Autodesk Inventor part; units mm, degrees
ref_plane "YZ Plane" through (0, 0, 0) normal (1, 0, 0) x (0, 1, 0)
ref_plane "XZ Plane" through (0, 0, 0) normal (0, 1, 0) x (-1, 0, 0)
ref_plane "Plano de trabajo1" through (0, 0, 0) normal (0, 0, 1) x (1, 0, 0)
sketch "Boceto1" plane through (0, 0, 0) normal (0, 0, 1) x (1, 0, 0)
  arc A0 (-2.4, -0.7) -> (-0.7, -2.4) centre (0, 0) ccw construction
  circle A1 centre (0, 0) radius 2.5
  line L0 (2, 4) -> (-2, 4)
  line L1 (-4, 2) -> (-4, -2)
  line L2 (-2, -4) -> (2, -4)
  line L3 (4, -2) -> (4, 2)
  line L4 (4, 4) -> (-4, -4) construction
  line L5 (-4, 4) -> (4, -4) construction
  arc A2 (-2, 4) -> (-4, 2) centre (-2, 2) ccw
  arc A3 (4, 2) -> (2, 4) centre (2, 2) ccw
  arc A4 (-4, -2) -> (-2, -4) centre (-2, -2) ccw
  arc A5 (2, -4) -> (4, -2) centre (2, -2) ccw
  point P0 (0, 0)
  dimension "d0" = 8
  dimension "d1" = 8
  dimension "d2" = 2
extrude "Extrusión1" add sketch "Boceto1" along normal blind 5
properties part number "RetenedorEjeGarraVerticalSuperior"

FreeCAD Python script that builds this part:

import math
import FreeCAD as App
import Part
import Sketcher

V = App.Vector
Q = App.Units.Quantity

doc = App.newDocument("Part")
body = doc.addObject("PartDesign::Body", "Body")

sketch1 = body.newObject("Sketcher::SketchObject", "Sketch")
sketch1.AttachmentSupport = (doc.getObject("XY_Plane"), [""])
sketch1.MapMode = "FlatFace"
sketch1.addGeometry(Part.ArcOfCircle(Part.Circle(V(2, 2, 0), V(0, 0, 1), 2), math.radians(0), math.radians(90)), False)
sketch1.addGeometry(Part.LineSegment(V(2, 4, 0), V(-2, 4, 0)), False)
sketch1.addGeometry(Part.ArcOfCircle(Part.Circle(V(-2, 2, 0), V(0, 0, 1), 2), math.radians(90), math.radians(180)), False)
sketch1.addGeometry(Part.LineSegment(V(-4, 2, 0), V(-4, -2, 0)), False)
sketch1.addGeometry(Part.ArcOfCircle(Part.Circle(V(-2, -2, 0), V(0, 0, 1), 2), math.radians(180), math.radians(270)), False)
sketch1.addGeometry(Part.LineSegment(V(-2, -4, 0), V(2, -4, 0)), False)
sketch1.addGeometry(Part.ArcOfCircle(Part.Circle(V(2, -2, 0), V(0, 0, 1), 2), math.radians(-90), math.radians(0)), False)
sketch1.addGeometry(Part.LineSegment(V(4, -2, 0), V(4, 2, 0)), False)
sketch1.addGeometry(Part.Circle(V(0, 0, 0), V(0, 0, 1), 2.5), False)
sketch1.addConstraint(Sketcher.Constraint("Tangent", 0, 2, 1, 1))
sketch1.addConstraint(Sketcher.Constraint("Tangent", 1, 2, 2, 1))
sketch1.addConstraint(Sketcher.Constraint("Tangent", 2, 2, 3, 1))
sketch1.addConstraint(Sketcher.Constraint("Tangent", 3, 2, 4, 1))
sketch1.addConstraint(Sketcher.Constraint("Tangent", 4, 2, 5, 1))
sketch1.addConstraint(Sketcher.Constraint("Tangent", 5, 2, 6, 1))
sketch1.addConstraint(Sketcher.Constraint("Tangent", 6, 2, 7, 1))
sketch1.addConstraint(Sketcher.Constraint("Tangent", 7, 2, 0, 1))
sketch1.addConstraint(Sketcher.Constraint("Horizontal", 1))
sketch1.addConstraint(Sketcher.Constraint("Vertical", 3))
sketch1.addConstraint(Sketcher.Constraint("Horizontal", 5))
sketch1.addConstraint(Sketcher.Constraint("Vertical", 7))
sketch1.addConstraint(Sketcher.Constraint("Coincident", 8, 3, -1, 1))
sketch1.addConstraint(Sketcher.Constraint("Equal", 0, 2))
sketch1.addConstraint(Sketcher.Constraint("Equal", 2, 4))
sketch1.addConstraint(Sketcher.Constraint("Equal", 4, 6))
sketch1.addConstraint(Sketcher.Constraint("Symmetric", 0, 3, 4, 3, -1, 1))
sketch1.addConstraint(Sketcher.Constraint("Equal", 5, 3))
sketch1.addConstraint(Sketcher.Constraint("Radius", 0, Q("2 mm")))
sketch1.addConstraint(Sketcher.Constraint("Diameter", 8, Q("5 mm")))
sketch1.addConstraint(Sketcher.Constraint("DistanceX", -1, 1, 0, 3, Q("2 mm")))
pad1 = body.newObject("PartDesign::Pad", "Pad")
pad1.Profile = sketch1
pad1.Length = 5

doc.recompute()
